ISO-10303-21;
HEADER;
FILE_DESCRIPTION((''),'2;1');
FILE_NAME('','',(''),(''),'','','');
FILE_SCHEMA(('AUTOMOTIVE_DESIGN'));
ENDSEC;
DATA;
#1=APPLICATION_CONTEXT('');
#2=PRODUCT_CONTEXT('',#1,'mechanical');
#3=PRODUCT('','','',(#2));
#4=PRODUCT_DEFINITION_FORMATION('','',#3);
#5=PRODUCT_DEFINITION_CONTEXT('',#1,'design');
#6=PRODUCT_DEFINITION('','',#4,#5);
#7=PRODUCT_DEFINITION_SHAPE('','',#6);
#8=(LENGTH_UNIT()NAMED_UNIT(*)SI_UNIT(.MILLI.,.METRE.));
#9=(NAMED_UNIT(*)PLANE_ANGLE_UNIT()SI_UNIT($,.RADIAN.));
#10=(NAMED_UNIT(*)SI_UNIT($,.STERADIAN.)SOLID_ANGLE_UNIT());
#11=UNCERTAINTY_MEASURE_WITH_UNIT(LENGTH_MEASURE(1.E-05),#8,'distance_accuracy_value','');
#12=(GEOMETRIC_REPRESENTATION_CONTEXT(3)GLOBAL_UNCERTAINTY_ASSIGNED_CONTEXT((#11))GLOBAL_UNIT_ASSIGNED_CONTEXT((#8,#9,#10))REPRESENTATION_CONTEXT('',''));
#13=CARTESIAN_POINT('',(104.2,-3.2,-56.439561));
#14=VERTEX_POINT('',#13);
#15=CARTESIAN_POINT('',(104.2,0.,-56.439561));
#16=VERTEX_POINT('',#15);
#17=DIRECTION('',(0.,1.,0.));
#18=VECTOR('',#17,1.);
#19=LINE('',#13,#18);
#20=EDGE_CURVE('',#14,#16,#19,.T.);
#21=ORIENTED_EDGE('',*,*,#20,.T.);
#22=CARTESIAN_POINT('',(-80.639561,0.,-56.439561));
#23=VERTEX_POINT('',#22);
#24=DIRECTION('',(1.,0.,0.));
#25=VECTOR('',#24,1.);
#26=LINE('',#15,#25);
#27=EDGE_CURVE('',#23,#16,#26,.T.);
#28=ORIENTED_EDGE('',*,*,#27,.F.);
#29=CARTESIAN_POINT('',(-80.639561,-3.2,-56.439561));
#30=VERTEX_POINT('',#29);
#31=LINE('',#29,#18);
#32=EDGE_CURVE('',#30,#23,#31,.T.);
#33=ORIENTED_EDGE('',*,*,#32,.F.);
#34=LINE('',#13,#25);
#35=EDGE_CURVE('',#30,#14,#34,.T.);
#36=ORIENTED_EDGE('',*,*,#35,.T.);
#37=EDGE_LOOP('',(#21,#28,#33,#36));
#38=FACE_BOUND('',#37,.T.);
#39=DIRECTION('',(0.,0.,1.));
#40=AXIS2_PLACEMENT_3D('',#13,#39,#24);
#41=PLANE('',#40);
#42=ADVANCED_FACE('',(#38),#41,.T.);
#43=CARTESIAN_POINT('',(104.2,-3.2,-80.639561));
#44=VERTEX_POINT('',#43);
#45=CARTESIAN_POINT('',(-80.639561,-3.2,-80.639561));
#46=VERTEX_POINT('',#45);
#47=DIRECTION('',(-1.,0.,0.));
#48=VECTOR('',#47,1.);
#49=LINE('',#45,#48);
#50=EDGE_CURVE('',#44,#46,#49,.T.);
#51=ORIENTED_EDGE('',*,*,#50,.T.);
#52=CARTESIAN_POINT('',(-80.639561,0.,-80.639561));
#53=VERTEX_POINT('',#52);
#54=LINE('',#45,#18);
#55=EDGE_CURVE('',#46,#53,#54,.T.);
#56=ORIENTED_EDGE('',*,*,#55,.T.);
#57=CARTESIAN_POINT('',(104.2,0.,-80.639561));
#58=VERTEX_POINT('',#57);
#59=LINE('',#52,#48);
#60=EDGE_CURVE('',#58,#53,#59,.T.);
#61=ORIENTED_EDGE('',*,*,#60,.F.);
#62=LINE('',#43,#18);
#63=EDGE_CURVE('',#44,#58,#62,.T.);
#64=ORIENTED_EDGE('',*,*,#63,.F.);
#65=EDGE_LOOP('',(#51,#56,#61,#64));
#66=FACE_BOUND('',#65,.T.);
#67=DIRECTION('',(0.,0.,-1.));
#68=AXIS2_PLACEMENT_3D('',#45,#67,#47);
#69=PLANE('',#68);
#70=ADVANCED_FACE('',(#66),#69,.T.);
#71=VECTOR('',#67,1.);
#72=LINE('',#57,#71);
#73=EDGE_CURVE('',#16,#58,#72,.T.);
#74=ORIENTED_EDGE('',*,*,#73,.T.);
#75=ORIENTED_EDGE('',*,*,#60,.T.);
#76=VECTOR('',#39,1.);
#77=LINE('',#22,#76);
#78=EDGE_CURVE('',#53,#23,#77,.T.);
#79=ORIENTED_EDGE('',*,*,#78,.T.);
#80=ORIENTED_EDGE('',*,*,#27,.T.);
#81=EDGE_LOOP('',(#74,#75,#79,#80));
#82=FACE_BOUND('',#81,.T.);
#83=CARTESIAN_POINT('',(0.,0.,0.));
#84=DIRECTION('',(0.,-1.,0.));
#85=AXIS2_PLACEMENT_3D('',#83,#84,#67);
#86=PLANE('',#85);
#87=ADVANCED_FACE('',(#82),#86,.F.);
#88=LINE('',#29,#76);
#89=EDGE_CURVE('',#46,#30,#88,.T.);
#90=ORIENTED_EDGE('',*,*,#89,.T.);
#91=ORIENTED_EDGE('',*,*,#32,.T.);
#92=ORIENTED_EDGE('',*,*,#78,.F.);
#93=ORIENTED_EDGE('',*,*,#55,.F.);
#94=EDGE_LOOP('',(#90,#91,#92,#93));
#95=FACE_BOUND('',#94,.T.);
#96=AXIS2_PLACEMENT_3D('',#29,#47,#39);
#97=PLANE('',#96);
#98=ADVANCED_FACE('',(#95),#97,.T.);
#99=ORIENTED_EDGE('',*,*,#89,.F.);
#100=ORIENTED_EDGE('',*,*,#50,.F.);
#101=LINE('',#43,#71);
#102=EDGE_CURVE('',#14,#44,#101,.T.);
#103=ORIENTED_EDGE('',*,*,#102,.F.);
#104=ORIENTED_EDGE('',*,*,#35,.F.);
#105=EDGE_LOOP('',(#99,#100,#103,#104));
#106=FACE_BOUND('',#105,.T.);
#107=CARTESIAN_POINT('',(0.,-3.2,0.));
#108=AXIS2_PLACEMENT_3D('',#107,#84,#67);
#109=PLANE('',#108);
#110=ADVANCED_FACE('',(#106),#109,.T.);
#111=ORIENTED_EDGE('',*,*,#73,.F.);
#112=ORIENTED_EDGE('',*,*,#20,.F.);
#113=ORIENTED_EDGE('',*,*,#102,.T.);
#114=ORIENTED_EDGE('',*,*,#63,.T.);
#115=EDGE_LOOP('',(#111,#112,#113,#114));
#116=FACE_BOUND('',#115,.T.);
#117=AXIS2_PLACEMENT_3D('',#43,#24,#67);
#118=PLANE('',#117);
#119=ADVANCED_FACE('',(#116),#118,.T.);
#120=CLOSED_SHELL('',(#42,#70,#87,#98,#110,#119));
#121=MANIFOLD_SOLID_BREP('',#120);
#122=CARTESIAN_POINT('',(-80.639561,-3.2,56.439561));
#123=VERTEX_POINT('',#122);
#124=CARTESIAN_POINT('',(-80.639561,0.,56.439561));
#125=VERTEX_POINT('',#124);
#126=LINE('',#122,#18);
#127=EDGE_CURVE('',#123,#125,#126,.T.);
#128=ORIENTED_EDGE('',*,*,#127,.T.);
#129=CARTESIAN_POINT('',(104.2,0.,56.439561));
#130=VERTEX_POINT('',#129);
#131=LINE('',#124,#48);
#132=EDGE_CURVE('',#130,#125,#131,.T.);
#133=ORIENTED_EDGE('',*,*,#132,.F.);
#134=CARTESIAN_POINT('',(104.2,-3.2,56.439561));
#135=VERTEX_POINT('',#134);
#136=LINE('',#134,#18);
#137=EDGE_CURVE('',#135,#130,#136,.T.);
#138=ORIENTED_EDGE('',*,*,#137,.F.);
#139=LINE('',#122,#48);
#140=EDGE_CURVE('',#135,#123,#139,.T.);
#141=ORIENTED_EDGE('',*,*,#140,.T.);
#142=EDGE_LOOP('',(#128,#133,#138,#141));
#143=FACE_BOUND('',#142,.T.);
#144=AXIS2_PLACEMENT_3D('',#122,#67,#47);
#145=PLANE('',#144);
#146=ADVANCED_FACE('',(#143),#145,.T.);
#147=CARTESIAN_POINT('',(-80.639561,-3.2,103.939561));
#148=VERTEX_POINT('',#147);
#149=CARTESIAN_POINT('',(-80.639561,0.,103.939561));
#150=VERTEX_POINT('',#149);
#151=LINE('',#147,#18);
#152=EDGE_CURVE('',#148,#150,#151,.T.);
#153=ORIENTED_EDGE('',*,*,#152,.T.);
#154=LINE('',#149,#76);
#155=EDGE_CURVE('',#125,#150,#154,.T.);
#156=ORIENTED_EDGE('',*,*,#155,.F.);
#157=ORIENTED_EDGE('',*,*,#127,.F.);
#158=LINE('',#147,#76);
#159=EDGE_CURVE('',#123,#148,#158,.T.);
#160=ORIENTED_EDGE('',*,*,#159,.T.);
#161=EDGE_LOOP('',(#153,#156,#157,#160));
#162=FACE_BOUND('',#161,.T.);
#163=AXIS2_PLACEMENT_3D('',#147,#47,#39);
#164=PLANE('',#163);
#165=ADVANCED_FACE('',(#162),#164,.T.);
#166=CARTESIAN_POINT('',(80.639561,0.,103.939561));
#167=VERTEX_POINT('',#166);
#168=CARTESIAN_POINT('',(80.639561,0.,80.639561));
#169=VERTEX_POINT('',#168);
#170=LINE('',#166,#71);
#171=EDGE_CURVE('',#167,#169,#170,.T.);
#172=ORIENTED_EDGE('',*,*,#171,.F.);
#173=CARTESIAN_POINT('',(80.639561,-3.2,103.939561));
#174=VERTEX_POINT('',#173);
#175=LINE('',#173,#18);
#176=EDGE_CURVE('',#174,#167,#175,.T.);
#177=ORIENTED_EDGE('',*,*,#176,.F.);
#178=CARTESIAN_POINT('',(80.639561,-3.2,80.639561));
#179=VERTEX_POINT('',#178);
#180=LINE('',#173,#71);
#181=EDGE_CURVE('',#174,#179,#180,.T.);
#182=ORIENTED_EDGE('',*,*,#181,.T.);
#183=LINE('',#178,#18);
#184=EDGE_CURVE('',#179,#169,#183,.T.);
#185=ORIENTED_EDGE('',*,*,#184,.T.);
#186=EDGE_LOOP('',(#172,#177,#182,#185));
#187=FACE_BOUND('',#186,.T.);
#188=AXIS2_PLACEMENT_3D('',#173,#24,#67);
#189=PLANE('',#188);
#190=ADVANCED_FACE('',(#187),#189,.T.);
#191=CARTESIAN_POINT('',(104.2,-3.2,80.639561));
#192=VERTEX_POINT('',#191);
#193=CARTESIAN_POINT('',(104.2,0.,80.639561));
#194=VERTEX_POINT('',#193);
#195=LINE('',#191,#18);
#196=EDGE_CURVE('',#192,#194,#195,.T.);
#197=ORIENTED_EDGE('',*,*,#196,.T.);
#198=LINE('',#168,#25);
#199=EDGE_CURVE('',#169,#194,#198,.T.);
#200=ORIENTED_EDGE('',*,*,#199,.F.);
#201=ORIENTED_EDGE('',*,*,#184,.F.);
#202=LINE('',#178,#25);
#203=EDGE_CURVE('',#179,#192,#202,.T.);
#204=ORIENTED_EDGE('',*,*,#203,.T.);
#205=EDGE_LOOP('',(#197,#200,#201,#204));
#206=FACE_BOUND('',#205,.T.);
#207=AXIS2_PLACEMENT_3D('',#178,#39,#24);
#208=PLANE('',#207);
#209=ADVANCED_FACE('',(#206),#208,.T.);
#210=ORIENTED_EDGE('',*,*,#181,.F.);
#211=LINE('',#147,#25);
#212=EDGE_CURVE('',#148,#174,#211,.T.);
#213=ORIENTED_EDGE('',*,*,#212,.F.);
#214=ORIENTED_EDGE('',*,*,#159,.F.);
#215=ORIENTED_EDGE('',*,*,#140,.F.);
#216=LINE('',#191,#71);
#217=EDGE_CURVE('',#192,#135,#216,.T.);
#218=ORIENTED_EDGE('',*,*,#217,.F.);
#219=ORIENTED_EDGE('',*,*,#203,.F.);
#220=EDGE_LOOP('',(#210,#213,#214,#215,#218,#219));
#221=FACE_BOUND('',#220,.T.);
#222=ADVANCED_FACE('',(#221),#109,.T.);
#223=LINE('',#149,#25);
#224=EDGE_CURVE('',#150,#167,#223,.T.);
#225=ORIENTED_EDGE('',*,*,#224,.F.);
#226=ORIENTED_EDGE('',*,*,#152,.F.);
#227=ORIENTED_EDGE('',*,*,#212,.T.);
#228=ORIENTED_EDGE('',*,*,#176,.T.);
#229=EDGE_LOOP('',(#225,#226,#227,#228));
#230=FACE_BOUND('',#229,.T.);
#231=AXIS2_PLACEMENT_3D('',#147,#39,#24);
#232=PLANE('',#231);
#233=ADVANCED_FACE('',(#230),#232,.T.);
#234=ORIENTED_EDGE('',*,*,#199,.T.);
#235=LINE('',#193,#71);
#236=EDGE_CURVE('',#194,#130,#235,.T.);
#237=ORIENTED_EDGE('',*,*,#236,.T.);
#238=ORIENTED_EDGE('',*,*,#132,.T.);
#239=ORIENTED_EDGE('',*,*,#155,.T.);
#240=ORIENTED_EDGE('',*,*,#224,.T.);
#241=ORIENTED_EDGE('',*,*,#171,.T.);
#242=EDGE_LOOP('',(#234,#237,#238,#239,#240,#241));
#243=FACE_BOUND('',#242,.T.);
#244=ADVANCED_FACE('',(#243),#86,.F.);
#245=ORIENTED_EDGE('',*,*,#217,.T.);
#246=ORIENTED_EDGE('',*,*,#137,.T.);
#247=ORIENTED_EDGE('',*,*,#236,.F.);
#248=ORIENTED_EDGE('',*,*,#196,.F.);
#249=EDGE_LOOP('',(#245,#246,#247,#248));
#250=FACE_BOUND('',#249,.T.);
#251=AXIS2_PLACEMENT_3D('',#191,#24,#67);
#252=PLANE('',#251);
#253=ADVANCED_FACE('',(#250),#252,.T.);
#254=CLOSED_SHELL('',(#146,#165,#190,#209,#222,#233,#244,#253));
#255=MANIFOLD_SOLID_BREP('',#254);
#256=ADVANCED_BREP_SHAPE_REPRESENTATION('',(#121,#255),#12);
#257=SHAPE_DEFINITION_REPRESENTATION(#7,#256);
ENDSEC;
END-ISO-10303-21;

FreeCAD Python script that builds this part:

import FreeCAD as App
import Part
import Sketcher
from FreeCAD import Vector
Q = App.Units.Quantity

doc = App.newDocument("Part")
params = doc.addObject("Spreadsheet::Sheet", "Params")
for row, (alias, value) in enumerate([
    ("sketch1_height", "47.5 mm"),
    ("sketch1_height2", "23.3 mm"),
    ("pad1_length", "3.2 mm"),
    ("sketch2_height", "24.2 mm"),
    ("pad2_length", "3.2 mm"),
], start=1):
    params.set(f"A{row}", alias)
    params.set(f"B{row}", "=" + value)
    params.setAlias(f"B{row}", alias)

body = doc.addObject("PartDesign::Body", "Body")

# Sketch on XZ plane
sketch1 = body.newObject("Sketcher::SketchObject", "Sketch")
sketch1.AttachmentSupport = (doc.getObject("XZ_Plane"), [""])
sketch1.MapMode = "FlatFace"
sketch1.addGeometry([
    Part.LineSegment(Vector(104, 56, 0), Vector(-81, 56, 0)),  # 0
    Part.LineSegment(Vector(-81, 56, 0), Vector(-81, 104, 0)),  # 1
    Part.LineSegment(Vector(-81, 104, 0), Vector(81, 104, 0)),  # 2
    Part.LineSegment(Vector(81, 104, 0), Vector(81, 81, 0)),  # 3
    Part.LineSegment(Vector(81, 81, 0), Vector(104, 81, 0)),  # 4
    Part.LineSegment(Vector(104, 81, 0), Vector(104, 56, 0)),  # 5
], False)
sketch1.addConstraint([
    Sketcher.Constraint("Coincident", 0, 2, 1, 1),
    Sketcher.Constraint("Coincident", 1, 2, 2, 1),
    Sketcher.Constraint("Coincident", 2, 2, 3, 1),
    Sketcher.Constraint("Coincident", 3, 2, 4, 1),
    Sketcher.Constraint("Coincident", 4, 2, 5, 1),
    Sketcher.Constraint("Coincident", 5, 2, 0, 1),
    Sketcher.Constraint("Horizontal", 0),
    Sketcher.Constraint("Vertical", 1),
    Sketcher.Constraint("Horizontal", 2),
    Sketcher.Constraint("Vertical", 3),
    Sketcher.Constraint("Horizontal", 4),
    Sketcher.Constraint("Vertical", 5),
    Sketcher.Constraint("DistanceY", 1, 1, 1, 2, Q("47.5 mm")),
    Sketcher.Constraint("DistanceY", 3, 2, 3, 1, Q("23.3 mm")),
    Sketcher.Constraint("DistanceX", -1, 1, 4, 2, Q("104.2 mm")),
    Sketcher.Constraint("DistanceX", 0, 2, 0, 1, Q("184.839561 mm")),
    Sketcher.Constraint("DistanceX", 4, 1, 4, 2, Q("23.560439 mm")),
    Sketcher.Constraint("DistanceY", -1, 1, 0, 2, Q("56.439561 mm")),
])
sketch1.setExpression("Constraints[12]", "Params.sketch1_height")
sketch1.setExpression("Constraints[13]", "Params.sketch1_height2")
pad1 = body.newObject("PartDesign::Pad", "Pad")
pad1.Profile = sketch1
pad1.setExpression("Length", "Params.pad1_length")
body2 = doc.addObject("PartDesign::Body", "Body001")

# Sketch on XZ plane
sketch2 = body2.newObject("Sketcher::SketchObject", "Sketch001")
sketch2.AttachmentSupport = (doc.getObject("XZ_Plane001"), [""])
sketch2.MapMode = "FlatFace"
sketch2.addGeometry([
    Part.LineSegment(Vector(-81, -81, 0), Vector(-81, -56, 0)),
    Part.LineSegment(Vector(-81, -56, 0), Vector(104, -56, 0)),
    Part.LineSegment(Vector(104, -56, 0), Vector(104, -81, 0)),
    Part.LineSegment(Vector(104, -81, 0), Vector(-81, -81, 0)),
], False)
sketch2.addConstraint([
    Sketcher.Constraint("Coincident", 0, 2, 1, 1),
    Sketcher.Constraint("Coincident", 1, 2, 2, 1),
    Sketcher.Constraint("Coincident", 2, 2, 3, 1),
    Sketcher.Constraint("Coincident", 3, 2, 0, 1),
    Sketcher.Constraint("Vertical", 0),
    Sketcher.Constraint("Horizontal", 1),
    Sketcher.Constraint("Vertical", 2),
    Sketcher.Constraint("Horizontal", 3),
    Sketcher.Constraint("DistanceY", 0, 1, 0, 2, Q("24.2 mm")),
    Sketcher.Constraint("DistanceX", -1, 1, 1, 2, Q("104.2 mm")),
    Sketcher.Constraint("DistanceX", 1, 1, 1, 2, Q("184.839561 mm")),
    Sketcher.Constraint("DistanceY", 0, 2, -1, 1, Q("56.439561 mm")),
])
sketch2.setExpression("Constraints[8]", "Params.sketch2_height")
pad2 = body2.newObject("PartDesign::Pad", "Pad001")
pad2.Profile = sketch2
pad2.setExpression("Length", "Params.pad2_length")

doc.recompute()
